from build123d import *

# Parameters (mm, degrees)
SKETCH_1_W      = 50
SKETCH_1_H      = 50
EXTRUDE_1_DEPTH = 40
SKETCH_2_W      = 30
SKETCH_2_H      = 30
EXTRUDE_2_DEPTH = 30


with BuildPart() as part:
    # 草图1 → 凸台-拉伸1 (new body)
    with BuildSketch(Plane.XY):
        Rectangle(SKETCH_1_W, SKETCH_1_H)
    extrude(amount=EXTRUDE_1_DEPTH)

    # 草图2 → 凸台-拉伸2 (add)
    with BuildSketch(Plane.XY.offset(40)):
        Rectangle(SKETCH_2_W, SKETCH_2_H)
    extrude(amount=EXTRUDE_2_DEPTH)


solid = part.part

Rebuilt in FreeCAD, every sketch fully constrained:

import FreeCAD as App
import Part
import Sketcher
Q = App.Units.Quantity

doc = App.newDocument("Part")
body = doc.addObject("PartDesign::Body", "Body")

# Sketch on XY plane
sketch1 = doc.addObject("Sketcher::SketchObject", "Sketch")
body.addObject(sketch1)
sketch1.AttachmentSupport = (doc.XY_Plane, [""])
sketch1.MapMode = "FlatFace"
sketch1.addGeometry(Part.LineSegment(App.Vector(-25, 25, 0), App.Vector(-25, -25, 0)), False)
sketch1.addGeometry(Part.LineSegment(App.Vector(-25, -25, 0), App.Vector(25, -25, 0)), False)
sketch1.addGeometry(Part.LineSegment(App.Vector(25, -25, 0), App.Vector(25, 25, 0)), False)
sketch1.addGeometry(Part.LineSegment(App.Vector(25, 25, 0), App.Vector(-25, 25, 0)), False)
sketch1.addConstraint(Sketcher.Constraint("Coincident", 0, 2, 1, 1))
sketch1.addConstraint(Sketcher.Constraint("Coincident", 1, 2, 2, 1))
sketch1.addConstraint(Sketcher.Constraint("Coincident", 2, 2, 3, 1))
sketch1.addConstraint(Sketcher.Constraint("Coincident", 3, 2, 0, 1))
sketch1.addConstraint(Sketcher.Constraint("Vertical", 0))
sketch1.addConstraint(Sketcher.Constraint("Horizontal", 1))
sketch1.addConstraint(Sketcher.Constraint("Vertical", 2))
sketch1.addConstraint(Sketcher.Constraint("Horizontal", 3))
sketch1.addConstraint(Sketcher.Constraint("Symmetric", 0, 2, 2, 2, -1, 1))
sketch1.addConstraint(Sketcher.Constraint("Equal", 3, 0))
sketch1.addConstraint(Sketcher.Constraint("DistanceX", 1, 1, 1, 2, Q("50 mm")))
pad1 = doc.addObject("PartDesign::Pad", "Pad")
body.addObject(pad1)
pad1.Profile = sketch1
pad1.Length = 40

# Sketch on XY plane
sketch2 = doc.addObject("Sketcher::SketchObject", "Sketch001")
body.addObject(sketch2)
sketch2.AttachmentSupport = (doc.XY_Plane, [""])
sketch2.MapMode = "FlatFace"
sketch2.AttachmentOffset = App.Placement(App.Vector(0, 0, 40), App.Rotation())
sketch2.addGeometry(Part.LineSegment(App.Vector(-15, 15, 0), App.Vector(-15, -15, 0)), False)
sketch2.addGeometry(Part.LineSegment(App.Vector(-15, -15, 0), App.Vector(15, -15, 0)), False)
sketch2.addGeometry(Part.LineSegment(App.Vector(15, -15, 0), App.Vector(15, 15, 0)), False)
sketch2.addGeometry(Part.LineSegment(App.Vector(15, 15, 0), App.Vector(-15, 15, 0)), False)
sketch2.addConstraint(Sketcher.Constraint("Coincident", 0, 2, 1, 1))
sketch2.addConstraint(Sketcher.Constraint("Coincident", 1, 2, 2, 1))
sketch2.addConstraint(Sketcher.Constraint("Coincident", 2, 2, 3, 1))
sketch2.addConstraint(Sketcher.Constraint("Coincident", 3, 2, 0, 1))
sketch2.addConstraint(Sketcher.Constraint("Vertical", 0))
sketch2.addConstraint(Sketcher.Constraint("Horizontal", 1))
sketch2.addConstraint(Sketcher.Constraint("Vertical", 2))
sketch2.addConstraint(Sketcher.Constraint("Horizontal", 3))
sketch2.addConstraint(Sketcher.Constraint("Symmetric", 0, 2, 2, 2, -1, 1))
sketch2.addConstraint(Sketcher.Constraint("Equal", 3, 0))
sketch2.addConstraint(Sketcher.Constraint("DistanceX", 1, 1, 1, 2, Q("30 mm")))
pad2 = doc.addObject("PartDesign::Pad", "Pad001")
body.addObject(pad2)
pad2.Profile = sketch2
pad2.Length = 30

doc.recompute()
